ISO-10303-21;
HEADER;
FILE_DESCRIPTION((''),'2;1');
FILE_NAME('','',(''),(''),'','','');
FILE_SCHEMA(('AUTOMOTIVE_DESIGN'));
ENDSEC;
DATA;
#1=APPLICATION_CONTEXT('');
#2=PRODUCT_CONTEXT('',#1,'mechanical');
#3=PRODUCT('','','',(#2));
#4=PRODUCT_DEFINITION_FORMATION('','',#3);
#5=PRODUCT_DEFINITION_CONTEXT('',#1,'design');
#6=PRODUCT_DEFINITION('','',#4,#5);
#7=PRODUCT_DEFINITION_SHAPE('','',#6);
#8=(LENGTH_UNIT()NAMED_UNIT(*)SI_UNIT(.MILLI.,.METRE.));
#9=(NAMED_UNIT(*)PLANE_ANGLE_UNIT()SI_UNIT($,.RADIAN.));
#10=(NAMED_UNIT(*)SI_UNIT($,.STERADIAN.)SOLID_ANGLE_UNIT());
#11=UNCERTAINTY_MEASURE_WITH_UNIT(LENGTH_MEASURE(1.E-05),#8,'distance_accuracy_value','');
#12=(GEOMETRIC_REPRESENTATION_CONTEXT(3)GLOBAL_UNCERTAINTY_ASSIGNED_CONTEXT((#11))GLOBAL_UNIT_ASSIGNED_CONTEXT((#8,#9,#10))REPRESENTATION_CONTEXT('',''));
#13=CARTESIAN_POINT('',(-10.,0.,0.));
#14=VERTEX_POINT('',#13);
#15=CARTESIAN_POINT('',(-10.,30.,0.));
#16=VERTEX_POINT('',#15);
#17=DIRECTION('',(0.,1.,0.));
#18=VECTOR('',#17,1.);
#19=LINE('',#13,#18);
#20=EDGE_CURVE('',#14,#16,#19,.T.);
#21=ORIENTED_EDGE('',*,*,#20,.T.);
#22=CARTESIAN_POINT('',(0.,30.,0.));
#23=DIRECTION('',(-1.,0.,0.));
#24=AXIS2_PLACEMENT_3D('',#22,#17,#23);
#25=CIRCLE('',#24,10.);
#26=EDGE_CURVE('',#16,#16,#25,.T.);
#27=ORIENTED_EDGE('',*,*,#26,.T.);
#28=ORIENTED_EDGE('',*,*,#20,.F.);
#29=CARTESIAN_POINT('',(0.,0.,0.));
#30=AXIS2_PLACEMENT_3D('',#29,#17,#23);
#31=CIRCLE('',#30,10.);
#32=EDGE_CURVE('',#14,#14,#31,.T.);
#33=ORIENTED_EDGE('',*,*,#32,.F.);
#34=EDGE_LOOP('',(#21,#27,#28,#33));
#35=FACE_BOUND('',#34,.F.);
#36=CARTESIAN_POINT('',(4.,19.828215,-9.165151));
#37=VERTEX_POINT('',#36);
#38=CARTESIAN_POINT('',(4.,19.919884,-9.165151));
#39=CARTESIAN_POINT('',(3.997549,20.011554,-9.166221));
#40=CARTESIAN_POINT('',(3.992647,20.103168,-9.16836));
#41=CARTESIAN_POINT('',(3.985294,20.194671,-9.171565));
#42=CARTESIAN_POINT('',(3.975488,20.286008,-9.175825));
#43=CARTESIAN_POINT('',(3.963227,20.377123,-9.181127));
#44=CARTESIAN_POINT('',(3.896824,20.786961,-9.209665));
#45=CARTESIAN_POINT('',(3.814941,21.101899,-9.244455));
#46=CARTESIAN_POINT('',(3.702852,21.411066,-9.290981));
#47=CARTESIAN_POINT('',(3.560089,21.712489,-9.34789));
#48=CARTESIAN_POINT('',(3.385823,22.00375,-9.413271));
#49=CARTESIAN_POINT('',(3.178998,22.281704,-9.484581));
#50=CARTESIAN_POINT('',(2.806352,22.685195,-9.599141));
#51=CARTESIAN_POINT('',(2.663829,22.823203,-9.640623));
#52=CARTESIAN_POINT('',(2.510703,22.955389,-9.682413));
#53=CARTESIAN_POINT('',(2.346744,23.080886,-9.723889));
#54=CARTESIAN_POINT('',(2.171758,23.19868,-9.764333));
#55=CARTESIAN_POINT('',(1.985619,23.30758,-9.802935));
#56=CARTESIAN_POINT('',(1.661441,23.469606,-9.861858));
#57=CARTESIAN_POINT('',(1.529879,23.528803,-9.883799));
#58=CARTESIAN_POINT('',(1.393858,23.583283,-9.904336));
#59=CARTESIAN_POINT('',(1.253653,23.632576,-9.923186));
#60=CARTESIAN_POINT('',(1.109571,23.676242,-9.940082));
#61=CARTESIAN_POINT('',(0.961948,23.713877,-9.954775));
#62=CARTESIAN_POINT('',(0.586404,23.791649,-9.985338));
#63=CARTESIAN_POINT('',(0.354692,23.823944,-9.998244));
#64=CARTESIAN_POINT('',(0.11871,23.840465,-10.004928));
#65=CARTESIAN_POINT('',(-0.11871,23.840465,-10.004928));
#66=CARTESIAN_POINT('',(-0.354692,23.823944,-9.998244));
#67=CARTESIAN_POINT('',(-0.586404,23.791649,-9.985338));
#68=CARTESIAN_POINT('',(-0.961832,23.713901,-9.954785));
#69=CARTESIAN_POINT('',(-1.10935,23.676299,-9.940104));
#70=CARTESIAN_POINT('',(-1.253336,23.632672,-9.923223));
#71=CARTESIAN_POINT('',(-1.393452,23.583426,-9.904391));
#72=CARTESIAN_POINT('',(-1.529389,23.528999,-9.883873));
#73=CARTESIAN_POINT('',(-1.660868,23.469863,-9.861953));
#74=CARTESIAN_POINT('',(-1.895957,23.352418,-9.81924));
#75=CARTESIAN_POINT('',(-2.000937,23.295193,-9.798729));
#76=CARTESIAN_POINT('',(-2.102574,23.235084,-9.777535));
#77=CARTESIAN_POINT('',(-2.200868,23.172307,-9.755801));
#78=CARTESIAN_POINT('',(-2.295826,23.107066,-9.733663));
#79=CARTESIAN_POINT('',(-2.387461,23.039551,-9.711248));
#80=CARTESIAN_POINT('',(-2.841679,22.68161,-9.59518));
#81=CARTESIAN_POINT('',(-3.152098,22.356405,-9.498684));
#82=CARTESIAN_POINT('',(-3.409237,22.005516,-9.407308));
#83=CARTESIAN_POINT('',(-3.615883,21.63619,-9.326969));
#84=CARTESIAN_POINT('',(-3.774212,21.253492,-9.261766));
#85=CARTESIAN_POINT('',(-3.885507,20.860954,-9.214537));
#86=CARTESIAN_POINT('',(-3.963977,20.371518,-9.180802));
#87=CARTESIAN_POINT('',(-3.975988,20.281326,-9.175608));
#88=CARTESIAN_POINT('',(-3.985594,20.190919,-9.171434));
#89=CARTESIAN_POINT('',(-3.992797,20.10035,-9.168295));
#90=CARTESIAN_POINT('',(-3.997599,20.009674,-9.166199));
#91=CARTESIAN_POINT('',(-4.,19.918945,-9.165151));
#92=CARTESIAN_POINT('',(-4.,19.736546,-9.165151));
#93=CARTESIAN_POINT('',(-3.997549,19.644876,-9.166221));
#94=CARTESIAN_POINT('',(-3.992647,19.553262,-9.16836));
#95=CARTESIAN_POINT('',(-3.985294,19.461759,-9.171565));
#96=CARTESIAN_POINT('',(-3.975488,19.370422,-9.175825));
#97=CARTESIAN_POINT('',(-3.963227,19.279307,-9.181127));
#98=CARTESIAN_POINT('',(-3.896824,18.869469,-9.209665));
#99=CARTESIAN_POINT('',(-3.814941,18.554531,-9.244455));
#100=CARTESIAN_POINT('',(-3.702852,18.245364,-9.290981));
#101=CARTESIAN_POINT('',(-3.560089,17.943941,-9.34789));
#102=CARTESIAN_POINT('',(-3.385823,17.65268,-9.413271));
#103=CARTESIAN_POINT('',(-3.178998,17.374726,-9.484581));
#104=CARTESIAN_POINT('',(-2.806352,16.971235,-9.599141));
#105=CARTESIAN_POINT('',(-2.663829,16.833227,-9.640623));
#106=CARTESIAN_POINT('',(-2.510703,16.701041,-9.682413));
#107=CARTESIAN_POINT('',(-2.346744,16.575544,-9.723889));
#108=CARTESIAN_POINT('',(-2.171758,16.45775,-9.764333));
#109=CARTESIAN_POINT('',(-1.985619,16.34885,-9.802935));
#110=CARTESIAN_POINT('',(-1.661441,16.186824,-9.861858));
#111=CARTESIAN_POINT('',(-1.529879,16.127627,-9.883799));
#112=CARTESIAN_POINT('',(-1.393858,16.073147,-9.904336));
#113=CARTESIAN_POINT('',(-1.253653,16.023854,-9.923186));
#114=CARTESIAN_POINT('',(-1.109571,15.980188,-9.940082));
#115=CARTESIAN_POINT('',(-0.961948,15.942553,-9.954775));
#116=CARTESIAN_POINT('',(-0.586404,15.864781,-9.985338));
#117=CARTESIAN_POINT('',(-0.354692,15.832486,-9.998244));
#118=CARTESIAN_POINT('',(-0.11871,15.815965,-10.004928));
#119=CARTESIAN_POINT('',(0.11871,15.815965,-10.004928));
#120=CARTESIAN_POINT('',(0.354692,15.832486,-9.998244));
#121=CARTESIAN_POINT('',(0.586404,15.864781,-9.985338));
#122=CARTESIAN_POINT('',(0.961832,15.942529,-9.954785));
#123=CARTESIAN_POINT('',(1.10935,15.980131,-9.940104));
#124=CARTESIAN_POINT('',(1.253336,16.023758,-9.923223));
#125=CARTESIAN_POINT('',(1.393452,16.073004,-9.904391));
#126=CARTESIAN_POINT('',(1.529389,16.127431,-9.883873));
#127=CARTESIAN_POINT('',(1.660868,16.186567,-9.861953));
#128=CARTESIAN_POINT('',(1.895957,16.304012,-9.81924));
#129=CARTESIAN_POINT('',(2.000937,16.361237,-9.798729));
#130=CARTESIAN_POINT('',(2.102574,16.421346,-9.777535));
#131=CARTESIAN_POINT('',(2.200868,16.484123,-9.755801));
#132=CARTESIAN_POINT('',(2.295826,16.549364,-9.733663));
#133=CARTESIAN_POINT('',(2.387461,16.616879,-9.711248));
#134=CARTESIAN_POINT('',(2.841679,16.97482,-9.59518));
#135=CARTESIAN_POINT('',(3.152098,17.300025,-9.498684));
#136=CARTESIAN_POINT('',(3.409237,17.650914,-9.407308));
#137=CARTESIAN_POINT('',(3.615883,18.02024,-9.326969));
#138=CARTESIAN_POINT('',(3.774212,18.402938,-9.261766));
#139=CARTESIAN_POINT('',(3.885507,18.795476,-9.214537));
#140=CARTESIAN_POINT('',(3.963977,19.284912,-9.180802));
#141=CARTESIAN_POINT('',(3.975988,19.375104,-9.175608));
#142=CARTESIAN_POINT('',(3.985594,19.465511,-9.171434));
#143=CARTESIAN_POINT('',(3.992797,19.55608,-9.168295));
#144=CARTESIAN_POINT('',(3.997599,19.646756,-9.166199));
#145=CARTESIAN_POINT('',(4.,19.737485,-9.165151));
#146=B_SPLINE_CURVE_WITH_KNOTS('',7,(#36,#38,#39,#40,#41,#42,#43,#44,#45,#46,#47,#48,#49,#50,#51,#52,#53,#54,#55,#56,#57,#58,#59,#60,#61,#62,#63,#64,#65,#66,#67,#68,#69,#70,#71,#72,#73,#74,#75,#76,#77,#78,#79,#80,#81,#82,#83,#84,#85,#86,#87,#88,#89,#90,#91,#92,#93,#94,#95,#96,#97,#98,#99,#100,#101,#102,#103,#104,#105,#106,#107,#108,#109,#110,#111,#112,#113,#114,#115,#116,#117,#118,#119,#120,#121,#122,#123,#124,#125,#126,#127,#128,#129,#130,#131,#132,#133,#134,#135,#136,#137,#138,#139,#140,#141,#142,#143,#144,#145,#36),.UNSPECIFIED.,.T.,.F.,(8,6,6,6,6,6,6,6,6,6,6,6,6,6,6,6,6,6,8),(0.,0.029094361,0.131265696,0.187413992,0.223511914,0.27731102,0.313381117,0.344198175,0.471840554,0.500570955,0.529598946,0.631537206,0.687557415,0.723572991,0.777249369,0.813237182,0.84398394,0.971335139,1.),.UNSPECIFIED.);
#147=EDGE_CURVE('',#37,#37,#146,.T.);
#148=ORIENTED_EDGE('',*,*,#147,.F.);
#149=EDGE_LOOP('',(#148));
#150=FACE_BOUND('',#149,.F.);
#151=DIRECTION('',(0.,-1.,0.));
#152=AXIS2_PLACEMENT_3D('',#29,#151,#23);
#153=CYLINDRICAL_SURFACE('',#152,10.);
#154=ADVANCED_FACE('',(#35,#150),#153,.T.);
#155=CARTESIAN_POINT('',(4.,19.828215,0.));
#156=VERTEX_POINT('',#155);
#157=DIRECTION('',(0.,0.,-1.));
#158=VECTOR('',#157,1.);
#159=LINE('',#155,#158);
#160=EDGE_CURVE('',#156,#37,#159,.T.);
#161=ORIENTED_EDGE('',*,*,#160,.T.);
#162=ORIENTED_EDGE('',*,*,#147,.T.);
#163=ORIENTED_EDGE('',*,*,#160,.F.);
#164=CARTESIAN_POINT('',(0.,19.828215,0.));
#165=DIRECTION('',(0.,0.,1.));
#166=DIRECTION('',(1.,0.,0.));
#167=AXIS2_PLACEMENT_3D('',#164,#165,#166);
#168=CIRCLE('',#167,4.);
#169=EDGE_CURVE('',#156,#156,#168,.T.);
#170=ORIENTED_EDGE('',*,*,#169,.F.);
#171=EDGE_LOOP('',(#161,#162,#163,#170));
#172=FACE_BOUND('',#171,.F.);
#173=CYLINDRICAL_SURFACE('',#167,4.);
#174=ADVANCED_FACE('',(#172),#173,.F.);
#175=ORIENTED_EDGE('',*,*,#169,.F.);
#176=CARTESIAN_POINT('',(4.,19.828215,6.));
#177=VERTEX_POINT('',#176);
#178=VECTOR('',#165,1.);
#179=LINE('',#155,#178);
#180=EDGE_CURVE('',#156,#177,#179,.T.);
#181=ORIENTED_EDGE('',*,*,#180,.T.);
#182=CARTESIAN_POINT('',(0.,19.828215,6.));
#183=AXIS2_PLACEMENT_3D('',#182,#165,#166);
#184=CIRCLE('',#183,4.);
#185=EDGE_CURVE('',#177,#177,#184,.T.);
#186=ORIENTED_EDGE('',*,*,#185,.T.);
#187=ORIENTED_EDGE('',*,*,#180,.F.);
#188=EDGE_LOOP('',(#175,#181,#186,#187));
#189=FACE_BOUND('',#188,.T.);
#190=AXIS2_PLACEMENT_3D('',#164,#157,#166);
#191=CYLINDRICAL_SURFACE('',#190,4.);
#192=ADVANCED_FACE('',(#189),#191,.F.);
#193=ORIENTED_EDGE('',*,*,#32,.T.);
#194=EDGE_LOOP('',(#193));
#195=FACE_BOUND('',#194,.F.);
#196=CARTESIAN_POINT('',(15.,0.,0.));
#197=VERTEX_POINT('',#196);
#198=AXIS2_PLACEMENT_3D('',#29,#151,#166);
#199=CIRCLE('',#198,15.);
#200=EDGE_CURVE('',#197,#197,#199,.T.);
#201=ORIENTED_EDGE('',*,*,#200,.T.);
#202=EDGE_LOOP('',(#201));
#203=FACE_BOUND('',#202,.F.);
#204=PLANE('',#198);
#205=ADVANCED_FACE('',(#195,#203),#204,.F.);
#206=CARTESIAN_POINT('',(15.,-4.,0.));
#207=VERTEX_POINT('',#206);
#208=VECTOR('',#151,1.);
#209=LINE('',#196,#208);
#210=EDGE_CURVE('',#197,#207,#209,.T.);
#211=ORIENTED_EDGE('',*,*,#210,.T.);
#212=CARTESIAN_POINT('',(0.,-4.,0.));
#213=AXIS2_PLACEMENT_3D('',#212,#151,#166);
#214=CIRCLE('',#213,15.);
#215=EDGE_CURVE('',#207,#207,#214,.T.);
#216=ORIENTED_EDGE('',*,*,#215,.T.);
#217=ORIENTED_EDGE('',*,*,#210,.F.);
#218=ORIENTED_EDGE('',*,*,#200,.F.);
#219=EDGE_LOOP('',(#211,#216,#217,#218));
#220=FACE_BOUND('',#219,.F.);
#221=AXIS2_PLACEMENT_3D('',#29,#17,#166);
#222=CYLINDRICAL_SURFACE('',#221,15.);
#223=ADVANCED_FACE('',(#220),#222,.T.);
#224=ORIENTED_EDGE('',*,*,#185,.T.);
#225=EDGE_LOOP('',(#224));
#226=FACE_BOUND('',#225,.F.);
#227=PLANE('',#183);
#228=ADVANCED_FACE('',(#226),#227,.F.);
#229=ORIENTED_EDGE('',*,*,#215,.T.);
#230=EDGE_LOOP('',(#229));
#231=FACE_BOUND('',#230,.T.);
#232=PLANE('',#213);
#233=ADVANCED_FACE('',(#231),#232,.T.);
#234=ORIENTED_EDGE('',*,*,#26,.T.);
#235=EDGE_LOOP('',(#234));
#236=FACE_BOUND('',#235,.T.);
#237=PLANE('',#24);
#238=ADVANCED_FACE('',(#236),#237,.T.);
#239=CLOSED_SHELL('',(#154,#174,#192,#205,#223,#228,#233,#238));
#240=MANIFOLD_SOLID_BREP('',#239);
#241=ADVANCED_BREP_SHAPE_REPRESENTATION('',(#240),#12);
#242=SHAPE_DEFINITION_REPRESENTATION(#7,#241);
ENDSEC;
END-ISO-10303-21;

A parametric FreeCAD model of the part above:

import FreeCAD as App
import Part
import Sketcher
from FreeCAD import Vector

doc = App.newDocument("Part")
body = doc.addObject("PartDesign::Body", "Body")

# Sketch on XZ plane
sketch1 = body.newObject("Sketcher::SketchObject", "Sketch")
sketch1.AttachmentSupport = (doc.getObject("XZ_Plane"), [""])
sketch1.MapMode = "FlatFace"
sketch1.addGeometry(Part.Circle(Vector(0, 0, 0), Vector(0, 0, 1), 15), False)
sketch1.addConstraint(Sketcher.Constraint("Coincident", 0, 3, -1, 1))
sketch1.addConstraint(Sketcher.Constraint("Diameter", 0, 30.0))
pad1 = body.newObject("PartDesign::Pad", "Pad")
pad1.Profile = sketch1
pad1.Length = 4

# Sketch on XZ plane
sketch2 = body.newObject("Sketcher::SketchObject", "Sketch001")
sketch2.AttachmentSupport = (doc.getObject("XZ_Plane"), [""])
sketch2.MapMode = "FlatFace"
sketch2.addGeometry(Part.Circle(Vector(0, 0, 0), Vector(0, 0, 1), 10), False)
sketch2.addConstraint(Sketcher.Constraint("Coincident", 0, 3, -1, 1))
sketch2.addConstraint(Sketcher.Constraint("Diameter", 0, 20.0))
pad2 = body.newObject("PartDesign::Pad", "Pad001")
pad2.Profile = sketch2
pad2.Length = 30
pad2.Reversed = True

# Sketch on XY plane
sketch3 = body.newObject("Sketcher::SketchObject", "Sketch002")
sketch3.AttachmentSupport = (doc.getObject("XY_Plane"), [""])
sketch3.MapMode = "FlatFace"
sketch3.addGeometry(Part.Circle(Vector(0, 19.8, 0), Vector(0, 0, 1), 4), False)
sketch3.addConstraint(Sketcher.Constraint("PointOnObject", 0, 3, -2))
sketch3.addConstraint(Sketcher.Constraint("Diameter", 0, 8.0))
sketch3.addConstraint(Sketcher.Constraint("DistanceY", -1, 1, 0, 3, 19.828215))
pocket1 = body.newObject("PartDesign::Pocket", "Pocket")
pocket1.Profile = sketch3
pocket1.Length = 27

# Sketch on XY plane
sketch4 = body.newObject("Sketcher::SketchObject", "Sketch003")
sketch4.AttachmentSupport = (doc.getObject("XY_Plane"), [""])
sketch4.MapMode = "FlatFace"
sketch4.addGeometry(Part.Circle(Vector(0, 19.8, 0), Vector(0, 0, 1), 4), False)
sketch4.addConstraint(Sketcher.Constraint("PointOnObject", 0, 3, -2))
sketch4.addConstraint(Sketcher.Constraint("Diameter", 0, 8.0))
sketch4.addConstraint(Sketcher.Constraint("DistanceY", -1, 1, 0, 3, 19.828215))
pocket2 = body.newObject("PartDesign::Pocket", "Pocket001")
pocket2.Profile = sketch4
pocket2.Length = 6
pocket2.Reversed = True

doc.recompute()
